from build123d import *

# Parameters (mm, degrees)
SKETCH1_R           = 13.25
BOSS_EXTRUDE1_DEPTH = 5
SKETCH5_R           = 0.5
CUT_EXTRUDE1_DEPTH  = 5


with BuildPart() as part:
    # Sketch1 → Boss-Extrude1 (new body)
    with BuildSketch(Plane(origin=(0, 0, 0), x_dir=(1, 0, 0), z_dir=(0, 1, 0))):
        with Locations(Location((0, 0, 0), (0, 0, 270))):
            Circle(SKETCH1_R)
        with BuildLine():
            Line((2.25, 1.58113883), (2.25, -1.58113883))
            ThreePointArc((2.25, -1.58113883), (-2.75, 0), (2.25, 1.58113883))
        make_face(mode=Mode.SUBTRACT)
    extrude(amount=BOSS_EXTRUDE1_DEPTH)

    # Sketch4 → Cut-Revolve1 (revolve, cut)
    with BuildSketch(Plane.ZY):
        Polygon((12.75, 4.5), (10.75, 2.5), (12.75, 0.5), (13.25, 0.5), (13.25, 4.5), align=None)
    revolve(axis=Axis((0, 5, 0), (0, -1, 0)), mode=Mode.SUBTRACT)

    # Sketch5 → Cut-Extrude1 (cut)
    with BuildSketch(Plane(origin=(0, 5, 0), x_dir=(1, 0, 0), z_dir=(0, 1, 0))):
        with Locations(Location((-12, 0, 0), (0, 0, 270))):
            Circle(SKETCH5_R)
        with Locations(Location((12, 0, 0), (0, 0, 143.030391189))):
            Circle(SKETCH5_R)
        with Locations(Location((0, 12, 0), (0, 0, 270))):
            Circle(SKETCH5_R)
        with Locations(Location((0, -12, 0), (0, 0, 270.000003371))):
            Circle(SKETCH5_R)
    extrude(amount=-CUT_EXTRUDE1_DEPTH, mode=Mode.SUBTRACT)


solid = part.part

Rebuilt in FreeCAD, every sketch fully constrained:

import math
import FreeCAD as App
import Part
import Sketcher
Q = App.Units.Quantity


def add_polygon(sketch, points):
    """Adds a closed chain of lines whose ends are joined by coincident constraints."""
    first, n = sketch.GeometryCount, len(points)
    for a, b in zip(points, points[1:] + points[:1]):
        sketch.addGeometry(Part.LineSegment(App.Vector(*a, 0), App.Vector(*b, 0)), False)
    for i in range(n):
        sketch.addConstraint(Sketcher.Constraint("Coincident", first + i, 2, first + (i + 1) % n, 1))

doc = App.newDocument("Part")
params = doc.addObject("Spreadsheet::Sheet", "Params")
for row, (alias, value) in enumerate([
    ("sketch1_diameter", "26.5 mm"),
    ("sketch1_radius", "2.75 mm"),
    ("pad1_length", "5 mm"),
    ("sketch2_width", "4 mm"),
    ("sketch2_height", "0.5 mm"),
    ("groove_angle", "360 deg"),
    ("sketch3_diameter", "1 mm"),
    ("pocket1_length", "5 mm"),
], start=1):
    params.set(f"A{row}", alias)
    params.set(f"B{row}", "=" + value)
    params.setAlias(f"B{row}", alias)

body = doc.addObject("PartDesign::Body", "Body")

# Sketch on XZ plane
sketch1 = doc.addObject("Sketcher::SketchObject", "Sketch")
body.addObject(sketch1)
sketch1.AttachmentSupport = (doc.XZ_Plane, [""])
sketch1.MapMode = "FlatFace"
sketch1.addGeometry([
    Part.Circle(App.Vector(0, 0, 0), App.Vector(0, 0, 1), 13.2),
    Part.ArcOfCircle(Part.Circle(App.Vector(0, 0, 0), App.Vector(0, 0, 1), 2.8), math.radians(35), math.radians(325)),
    Part.LineSegment(App.Vector(2.2, -1.6, 0), App.Vector(2.2, 1.6, 0)),
], False)
sketch1.addConstraint([
    Sketcher.Constraint("Coincident", 1, 1, 2, 2),
    Sketcher.Constraint("Coincident", 2, 1, 1, 2),
    Sketcher.Constraint("Vertical", 2),
    Sketcher.Constraint("Coincident", 0, 3, -1, 1),
    Sketcher.Constraint("Coincident", 1, 3, -1, 1),
    Sketcher.Constraint("Diameter", 0, Q("26.5 mm")),
    Sketcher.Constraint("Radius", 1, Q("2.75 mm")),
    Sketcher.Constraint("DistanceX", -1, 1, 1, 1, Q("2.25 mm")),
])
sketch1.setExpression("Constraints[5]", "Params.sketch1_diameter")
sketch1.setExpression("Constraints[6]", "Params.sketch1_radius")
pad1 = doc.addObject("PartDesign::Pad", "Pad")
body.addObject(pad1)
pad1.Profile = sketch1
pad1.setExpression("Length", "Params.pad1_length")
pad1.Reversed = True

# Sketch on YZ plane
sketch2 = doc.addObject("Sketcher::SketchObject", "Sketch001")
body.addObject(sketch2)
sketch2.AttachmentSupport = (doc.YZ_Plane, [""])
sketch2.MapMode = "FlatFace"
add_polygon(sketch2, [(4.5, 12.8), (2.5, 10.8), (0.5, 12.8), (0.5, 13.2), (4.5, 13.2)])  # lines 0-4
sketch2.addConstraint([
    Sketcher.Constraint("Vertical", 2),
    Sketcher.Constraint("Horizontal", 3),
    Sketcher.Constraint("Vertical", 4),
    Sketcher.Constraint("Perpendicular", 0, 1),
    Sketcher.Constraint("Horizontal", 1, 2, 4, 2),
    Sketcher.Constraint("Equal", 0, 1),
    Sketcher.Constraint("DistanceX", 3, 1, 3, 2, Q("4 mm")),
    Sketcher.Constraint("DistanceY", 2, 1, 2, 2, Q("0.5 mm")),
    Sketcher.Constraint("DistanceX", -1, 1, 0, 2, Q("2.5 mm")),
    Sketcher.Constraint("DistanceY", -1, 1, 0, 2, Q("10.75 mm")),
])
sketch2.setExpression("Constraints[11]", "Params.sketch2_width")
sketch2.setExpression("Constraints[12]", "Params.sketch2_height")
groove = doc.addObject("PartDesign::Groove", "Groove")
body.addObject(groove)
groove.Profile = sketch2
groove.ReferenceAxis = (sketch2, ["H_Axis"])
groove.setExpression("Angle", "Params.groove_angle")

# Sketch on XZ plane
sketch3 = doc.addObject("Sketcher::SketchObject", "Sketch002")
body.addObject(sketch3)
sketch3.AttachmentSupport = (doc.XZ_Plane, [""])
sketch3.MapMode = "FlatFace"
sketch3.AttachmentOffset = App.Placement(App.Vector(0, 0, -5), App.Rotation())
sketch3.addGeometry([
    Part.Circle(App.Vector(-12, 0, 0), App.Vector(0, 0, 1), 0.5),
    Part.Circle(App.Vector(12, 0, 0), App.Vector(0, 0, 1), 0.5),
    Part.Circle(App.Vector(0, -12, 0), App.Vector(0, 0, 1), 0.5),
    Part.Circle(App.Vector(0, 12, 0), App.Vector(0, 0, 1), 0.5),
], False)
sketch3.addConstraint([
    Sketcher.Constraint("Equal", 0, 1),
    Sketcher.Constraint("Equal", 1, 2),
    Sketcher.Constraint("Equal", 2, 3),
    Sketcher.Constraint("Symmetric", 0, 3, 1, 3, -1, 1),
    Sketcher.Constraint("Symmetric", 2, 3, 3, 3, -1, 1),
    Sketcher.Constraint("PointOnObject", 0, 3, -1),
    Sketcher.Constraint("PointOnObject", 2, 3, -2),
    Sketcher.Constraint("Diameter", 0, Q("1 mm")),
    Sketcher.Constraint("DistanceX", 0, 3, -1, 1, Q("12 mm")),
    Sketcher.Constraint("DistanceY", 2, 3, -1, 1, Q("12 mm")),
])
sketch3.setExpression("Constraints[7]", "Params.sketch3_diameter")
pocket1 = doc.addObject("PartDesign::Pocket", "Pocket")
body.addObject(pocket1)
pocket1.Profile = sketch3
pocket1.setExpression("Length", "Params.pocket1_length")
pocket1.Reversed = True

doc.recompute()
